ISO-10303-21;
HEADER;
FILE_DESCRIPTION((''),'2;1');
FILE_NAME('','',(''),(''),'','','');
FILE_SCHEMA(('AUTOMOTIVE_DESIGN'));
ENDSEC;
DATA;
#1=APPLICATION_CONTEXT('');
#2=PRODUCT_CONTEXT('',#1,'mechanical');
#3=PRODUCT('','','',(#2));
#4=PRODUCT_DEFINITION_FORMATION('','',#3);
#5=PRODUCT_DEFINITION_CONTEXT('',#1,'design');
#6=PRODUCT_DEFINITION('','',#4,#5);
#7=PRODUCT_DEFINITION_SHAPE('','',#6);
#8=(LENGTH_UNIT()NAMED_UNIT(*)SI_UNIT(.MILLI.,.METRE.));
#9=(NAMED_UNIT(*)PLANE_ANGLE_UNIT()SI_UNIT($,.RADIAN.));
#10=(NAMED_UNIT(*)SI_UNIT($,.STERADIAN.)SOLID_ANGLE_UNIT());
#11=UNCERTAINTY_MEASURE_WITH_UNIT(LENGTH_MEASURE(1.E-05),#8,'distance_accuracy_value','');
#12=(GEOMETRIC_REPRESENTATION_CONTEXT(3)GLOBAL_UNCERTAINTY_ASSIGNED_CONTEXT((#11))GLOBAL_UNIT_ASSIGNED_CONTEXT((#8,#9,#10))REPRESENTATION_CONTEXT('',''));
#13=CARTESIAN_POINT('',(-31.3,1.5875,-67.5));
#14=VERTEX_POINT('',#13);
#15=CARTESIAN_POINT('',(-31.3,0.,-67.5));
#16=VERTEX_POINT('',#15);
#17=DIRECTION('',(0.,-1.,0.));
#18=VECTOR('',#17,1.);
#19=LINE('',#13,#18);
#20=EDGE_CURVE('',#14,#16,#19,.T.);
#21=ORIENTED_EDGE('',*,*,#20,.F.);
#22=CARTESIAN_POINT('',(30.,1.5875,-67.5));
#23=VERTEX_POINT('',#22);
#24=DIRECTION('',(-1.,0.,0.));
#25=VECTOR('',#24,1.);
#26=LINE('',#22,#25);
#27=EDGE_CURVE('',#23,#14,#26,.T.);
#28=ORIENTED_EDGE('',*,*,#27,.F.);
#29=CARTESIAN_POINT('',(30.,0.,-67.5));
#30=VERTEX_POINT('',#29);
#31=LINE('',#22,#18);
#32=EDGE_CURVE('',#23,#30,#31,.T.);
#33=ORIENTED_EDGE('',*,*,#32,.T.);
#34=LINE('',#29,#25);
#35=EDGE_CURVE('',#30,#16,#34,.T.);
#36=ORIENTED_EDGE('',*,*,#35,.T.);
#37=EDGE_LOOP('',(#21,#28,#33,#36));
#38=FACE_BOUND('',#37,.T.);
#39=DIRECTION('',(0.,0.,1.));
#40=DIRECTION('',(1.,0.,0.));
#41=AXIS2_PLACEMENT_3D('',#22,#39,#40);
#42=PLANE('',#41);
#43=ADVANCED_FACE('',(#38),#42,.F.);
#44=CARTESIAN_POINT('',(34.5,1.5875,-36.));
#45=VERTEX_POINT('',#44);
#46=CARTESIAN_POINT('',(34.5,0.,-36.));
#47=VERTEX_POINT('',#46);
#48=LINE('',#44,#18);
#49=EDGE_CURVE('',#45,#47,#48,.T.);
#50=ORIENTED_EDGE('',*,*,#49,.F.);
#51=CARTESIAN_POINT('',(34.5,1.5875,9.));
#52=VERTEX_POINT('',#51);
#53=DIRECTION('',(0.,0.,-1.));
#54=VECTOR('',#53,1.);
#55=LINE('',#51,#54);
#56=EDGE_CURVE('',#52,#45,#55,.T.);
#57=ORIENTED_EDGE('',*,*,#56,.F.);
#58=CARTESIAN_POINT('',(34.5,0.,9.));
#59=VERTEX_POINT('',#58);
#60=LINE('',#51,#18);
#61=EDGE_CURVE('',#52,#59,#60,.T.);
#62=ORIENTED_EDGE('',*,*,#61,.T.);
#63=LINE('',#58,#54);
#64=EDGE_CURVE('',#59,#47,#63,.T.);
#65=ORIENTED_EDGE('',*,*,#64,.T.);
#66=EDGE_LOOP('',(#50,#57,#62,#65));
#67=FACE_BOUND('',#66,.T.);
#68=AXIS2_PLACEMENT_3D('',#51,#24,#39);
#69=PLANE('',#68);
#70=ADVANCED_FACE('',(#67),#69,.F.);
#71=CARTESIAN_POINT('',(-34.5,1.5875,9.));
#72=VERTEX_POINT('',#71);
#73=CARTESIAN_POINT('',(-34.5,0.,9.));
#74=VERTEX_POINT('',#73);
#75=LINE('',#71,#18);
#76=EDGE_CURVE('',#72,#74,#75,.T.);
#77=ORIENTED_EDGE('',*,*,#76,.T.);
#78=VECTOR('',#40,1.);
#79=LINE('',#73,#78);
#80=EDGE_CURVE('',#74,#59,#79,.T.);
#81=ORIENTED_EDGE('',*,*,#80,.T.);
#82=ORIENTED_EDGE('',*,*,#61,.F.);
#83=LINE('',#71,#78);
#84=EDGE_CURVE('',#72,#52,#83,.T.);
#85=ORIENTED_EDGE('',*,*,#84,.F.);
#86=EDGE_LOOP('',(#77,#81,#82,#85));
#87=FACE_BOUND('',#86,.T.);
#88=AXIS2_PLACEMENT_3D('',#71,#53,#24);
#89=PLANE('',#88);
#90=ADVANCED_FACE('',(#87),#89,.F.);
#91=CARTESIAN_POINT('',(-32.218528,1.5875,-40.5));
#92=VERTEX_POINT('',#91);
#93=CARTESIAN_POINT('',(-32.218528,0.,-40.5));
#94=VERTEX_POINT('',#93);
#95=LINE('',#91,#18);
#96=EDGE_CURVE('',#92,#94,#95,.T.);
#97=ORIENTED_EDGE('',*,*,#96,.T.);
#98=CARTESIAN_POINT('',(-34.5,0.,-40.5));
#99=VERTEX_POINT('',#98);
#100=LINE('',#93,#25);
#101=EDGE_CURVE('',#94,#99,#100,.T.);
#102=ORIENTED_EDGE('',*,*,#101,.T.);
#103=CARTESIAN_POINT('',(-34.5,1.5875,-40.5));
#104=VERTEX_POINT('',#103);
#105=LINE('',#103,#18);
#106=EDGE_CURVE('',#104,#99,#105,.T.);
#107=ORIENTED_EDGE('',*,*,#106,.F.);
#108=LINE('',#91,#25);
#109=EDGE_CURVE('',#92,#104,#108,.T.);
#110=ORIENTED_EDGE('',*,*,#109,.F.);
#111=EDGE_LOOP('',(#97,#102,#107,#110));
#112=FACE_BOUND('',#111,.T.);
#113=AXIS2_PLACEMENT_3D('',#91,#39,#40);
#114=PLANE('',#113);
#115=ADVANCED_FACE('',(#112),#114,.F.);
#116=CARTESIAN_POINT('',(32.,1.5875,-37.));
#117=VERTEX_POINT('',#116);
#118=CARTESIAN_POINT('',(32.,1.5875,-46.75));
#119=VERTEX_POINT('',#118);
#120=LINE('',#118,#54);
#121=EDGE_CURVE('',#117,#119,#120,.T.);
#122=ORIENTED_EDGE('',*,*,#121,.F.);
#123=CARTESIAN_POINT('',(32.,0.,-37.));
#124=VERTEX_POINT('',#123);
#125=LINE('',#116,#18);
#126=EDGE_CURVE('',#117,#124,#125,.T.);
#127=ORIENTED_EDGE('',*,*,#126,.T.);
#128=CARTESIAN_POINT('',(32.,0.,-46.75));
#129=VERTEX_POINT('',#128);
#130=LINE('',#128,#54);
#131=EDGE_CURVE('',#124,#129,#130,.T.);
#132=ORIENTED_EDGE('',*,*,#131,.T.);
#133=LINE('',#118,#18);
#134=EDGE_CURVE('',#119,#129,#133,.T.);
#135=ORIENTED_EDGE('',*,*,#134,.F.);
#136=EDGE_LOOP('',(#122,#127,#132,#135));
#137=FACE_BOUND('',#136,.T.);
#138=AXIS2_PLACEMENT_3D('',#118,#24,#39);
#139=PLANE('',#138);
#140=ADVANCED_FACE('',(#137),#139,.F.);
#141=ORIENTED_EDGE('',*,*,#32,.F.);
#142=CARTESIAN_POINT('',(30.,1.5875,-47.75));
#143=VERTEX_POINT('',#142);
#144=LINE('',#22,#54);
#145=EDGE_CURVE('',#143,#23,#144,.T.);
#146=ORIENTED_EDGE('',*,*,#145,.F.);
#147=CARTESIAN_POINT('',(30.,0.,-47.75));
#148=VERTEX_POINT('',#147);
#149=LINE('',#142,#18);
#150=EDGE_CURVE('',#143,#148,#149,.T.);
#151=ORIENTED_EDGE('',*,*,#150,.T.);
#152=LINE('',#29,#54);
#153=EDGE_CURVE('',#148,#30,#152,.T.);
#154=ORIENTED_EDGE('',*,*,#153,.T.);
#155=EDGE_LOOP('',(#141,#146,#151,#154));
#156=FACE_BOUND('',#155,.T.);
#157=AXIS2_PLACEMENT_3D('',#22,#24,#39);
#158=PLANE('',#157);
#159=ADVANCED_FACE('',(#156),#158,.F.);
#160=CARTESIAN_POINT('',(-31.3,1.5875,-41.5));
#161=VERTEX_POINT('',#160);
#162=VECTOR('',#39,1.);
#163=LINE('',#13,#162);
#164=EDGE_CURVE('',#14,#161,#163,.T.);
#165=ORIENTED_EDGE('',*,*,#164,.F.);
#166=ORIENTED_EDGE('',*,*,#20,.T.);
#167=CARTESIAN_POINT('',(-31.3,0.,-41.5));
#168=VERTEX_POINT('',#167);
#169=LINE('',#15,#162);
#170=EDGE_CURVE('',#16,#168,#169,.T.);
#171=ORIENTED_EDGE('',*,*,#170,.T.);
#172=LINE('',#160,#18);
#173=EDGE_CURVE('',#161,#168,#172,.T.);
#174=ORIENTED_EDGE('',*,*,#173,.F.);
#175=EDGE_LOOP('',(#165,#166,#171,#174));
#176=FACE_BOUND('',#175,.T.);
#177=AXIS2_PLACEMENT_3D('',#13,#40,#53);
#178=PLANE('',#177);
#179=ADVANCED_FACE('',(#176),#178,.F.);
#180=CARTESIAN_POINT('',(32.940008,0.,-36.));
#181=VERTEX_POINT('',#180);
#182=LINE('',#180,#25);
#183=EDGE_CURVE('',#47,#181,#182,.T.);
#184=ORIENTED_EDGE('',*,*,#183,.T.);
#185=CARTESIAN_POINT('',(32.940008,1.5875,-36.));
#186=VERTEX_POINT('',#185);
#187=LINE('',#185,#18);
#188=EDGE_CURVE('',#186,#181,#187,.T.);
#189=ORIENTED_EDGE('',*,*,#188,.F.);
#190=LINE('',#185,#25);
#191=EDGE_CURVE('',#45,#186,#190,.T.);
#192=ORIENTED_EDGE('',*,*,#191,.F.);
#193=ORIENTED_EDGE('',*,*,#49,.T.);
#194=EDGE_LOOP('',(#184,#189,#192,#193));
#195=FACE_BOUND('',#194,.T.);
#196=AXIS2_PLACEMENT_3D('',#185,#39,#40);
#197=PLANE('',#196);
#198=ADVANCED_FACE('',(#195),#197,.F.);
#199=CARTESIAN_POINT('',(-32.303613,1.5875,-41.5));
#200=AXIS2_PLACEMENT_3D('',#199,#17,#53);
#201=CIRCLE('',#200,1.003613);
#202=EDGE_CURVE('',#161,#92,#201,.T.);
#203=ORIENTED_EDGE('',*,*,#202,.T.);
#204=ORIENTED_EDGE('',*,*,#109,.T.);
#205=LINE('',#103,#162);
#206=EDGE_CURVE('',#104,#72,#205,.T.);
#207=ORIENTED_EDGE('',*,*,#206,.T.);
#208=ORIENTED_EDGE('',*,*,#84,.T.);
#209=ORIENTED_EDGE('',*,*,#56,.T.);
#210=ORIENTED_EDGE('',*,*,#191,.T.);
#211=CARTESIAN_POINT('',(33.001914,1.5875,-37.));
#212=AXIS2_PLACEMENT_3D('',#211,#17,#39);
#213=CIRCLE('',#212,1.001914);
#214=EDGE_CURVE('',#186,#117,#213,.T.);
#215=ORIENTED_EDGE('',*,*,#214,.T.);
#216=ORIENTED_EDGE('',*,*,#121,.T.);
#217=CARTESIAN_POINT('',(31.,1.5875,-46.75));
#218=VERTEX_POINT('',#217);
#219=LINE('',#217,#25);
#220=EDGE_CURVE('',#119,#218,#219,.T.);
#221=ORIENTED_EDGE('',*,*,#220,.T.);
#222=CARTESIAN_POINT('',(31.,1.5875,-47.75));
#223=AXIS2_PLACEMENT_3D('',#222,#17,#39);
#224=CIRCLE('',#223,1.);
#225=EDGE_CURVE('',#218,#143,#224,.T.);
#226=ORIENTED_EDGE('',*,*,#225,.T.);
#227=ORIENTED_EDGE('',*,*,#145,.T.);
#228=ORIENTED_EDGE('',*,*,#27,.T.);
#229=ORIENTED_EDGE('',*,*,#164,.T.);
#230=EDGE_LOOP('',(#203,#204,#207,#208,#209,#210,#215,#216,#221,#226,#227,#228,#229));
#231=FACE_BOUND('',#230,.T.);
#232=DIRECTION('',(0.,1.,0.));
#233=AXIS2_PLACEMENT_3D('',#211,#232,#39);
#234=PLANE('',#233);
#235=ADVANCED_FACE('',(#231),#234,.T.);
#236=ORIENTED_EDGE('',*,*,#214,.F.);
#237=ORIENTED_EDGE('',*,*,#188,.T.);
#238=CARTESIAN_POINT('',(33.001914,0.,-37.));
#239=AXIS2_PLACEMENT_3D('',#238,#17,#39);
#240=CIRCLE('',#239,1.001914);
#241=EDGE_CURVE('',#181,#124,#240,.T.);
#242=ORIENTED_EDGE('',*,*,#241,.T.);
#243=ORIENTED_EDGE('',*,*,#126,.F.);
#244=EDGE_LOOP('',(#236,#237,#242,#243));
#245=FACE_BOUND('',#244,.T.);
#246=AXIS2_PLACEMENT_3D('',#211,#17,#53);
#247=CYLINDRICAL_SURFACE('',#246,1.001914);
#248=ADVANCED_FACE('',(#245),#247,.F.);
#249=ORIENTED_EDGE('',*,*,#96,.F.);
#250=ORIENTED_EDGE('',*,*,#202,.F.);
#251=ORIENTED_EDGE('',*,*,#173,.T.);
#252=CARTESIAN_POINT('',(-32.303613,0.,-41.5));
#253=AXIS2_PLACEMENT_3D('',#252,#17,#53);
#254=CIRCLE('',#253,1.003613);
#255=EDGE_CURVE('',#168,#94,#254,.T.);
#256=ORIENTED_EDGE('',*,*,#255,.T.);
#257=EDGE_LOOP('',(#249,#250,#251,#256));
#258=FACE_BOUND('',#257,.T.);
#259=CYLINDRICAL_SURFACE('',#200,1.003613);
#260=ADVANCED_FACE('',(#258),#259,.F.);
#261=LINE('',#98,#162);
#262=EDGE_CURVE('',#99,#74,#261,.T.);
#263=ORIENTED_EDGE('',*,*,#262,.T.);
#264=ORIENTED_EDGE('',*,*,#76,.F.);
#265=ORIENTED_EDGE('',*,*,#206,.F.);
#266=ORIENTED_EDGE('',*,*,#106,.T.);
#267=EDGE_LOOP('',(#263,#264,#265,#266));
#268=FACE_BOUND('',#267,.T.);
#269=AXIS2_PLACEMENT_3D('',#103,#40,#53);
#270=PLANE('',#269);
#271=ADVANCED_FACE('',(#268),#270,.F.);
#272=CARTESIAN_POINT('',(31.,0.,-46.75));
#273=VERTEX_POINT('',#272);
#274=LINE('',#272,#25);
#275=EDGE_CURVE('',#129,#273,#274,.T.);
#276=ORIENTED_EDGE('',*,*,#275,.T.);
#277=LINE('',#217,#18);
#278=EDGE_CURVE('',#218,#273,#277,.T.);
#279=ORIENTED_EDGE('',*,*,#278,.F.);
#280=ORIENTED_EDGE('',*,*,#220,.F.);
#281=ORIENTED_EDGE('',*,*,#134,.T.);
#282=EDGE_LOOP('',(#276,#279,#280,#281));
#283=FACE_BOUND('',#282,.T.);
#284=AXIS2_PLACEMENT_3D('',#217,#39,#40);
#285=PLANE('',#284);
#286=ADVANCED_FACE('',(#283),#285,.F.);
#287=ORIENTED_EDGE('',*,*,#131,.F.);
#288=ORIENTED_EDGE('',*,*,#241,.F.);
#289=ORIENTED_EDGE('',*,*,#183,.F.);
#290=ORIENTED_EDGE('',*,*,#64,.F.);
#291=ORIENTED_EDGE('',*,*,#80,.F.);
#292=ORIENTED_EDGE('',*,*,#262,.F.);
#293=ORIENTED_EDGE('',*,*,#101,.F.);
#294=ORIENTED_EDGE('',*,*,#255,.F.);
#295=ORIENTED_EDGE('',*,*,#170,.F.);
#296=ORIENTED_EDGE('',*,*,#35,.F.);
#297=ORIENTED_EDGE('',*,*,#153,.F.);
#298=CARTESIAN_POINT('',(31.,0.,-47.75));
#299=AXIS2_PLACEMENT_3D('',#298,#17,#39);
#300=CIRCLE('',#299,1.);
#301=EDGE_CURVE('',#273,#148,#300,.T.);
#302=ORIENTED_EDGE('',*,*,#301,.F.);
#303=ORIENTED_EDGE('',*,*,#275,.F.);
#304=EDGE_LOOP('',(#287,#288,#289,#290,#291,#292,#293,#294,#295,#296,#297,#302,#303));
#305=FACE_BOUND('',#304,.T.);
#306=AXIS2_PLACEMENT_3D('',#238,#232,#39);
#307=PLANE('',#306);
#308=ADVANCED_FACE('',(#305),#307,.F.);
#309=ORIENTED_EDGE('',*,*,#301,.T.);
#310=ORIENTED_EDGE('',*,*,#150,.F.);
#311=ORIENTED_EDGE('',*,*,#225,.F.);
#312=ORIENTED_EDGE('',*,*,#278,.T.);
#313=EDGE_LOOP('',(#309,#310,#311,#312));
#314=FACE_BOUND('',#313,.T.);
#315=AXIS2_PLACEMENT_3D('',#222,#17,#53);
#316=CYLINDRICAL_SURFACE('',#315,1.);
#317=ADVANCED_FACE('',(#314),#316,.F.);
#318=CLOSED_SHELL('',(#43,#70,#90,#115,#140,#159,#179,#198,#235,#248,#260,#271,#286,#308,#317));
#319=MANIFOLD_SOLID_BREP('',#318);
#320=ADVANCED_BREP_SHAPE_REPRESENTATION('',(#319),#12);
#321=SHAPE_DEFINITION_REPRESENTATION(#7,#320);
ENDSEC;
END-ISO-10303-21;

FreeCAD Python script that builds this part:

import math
import FreeCAD as App
import Part
import Sketcher

V = App.Vector
Q = App.Units.Quantity

doc = App.newDocument("Part")
params = doc.addObject("Spreadsheet::Sheet", "Params")
for row, (alias, value) in enumerate([
    ("sketch1_radius", "1 mm"),
    ("sketch1_width", "69 mm"),
    ("sketch1_width2", "1 mm"),
    ("sketch1_height", "45 mm"),
    ("sketch1_height2", "26 mm"),
    ("pad1_length", "1.5875 mm"),
], start=1):
    params.set(f"A{row}", alias)
    params.set(f"B{row}", "=" + value)
    params.setAlias(f"B{row}", alias)

body = doc.addObject("PartDesign::Body", "Body")

# Sketch on XZ plane
sketch1 = body.newObject("Sketcher::SketchObject", "Sketch")
sketch1.AttachmentSupport = (doc.getObject("XZ_Plane"), [""])
sketch1.MapMode = "FlatFace"
sketch1.addGeometry([
    Part.LineSegment(V(-34.5, 9, 0), V(34.5, 9, 0)),  # 0
    Part.LineSegment(V(34.5, 9, 0), V(34.5, -36, 0)),  # 1
    Part.LineSegment(V(34.5, -36, 0), V(32.9, -36, 0)),  # 2
    Part.ArcOfCircle(Part.Circle(V(33, -37, 0), V(0, 0, 1), 1), math.radians(94), math.radians(180)),  # 3
    Part.LineSegment(V(32, -37, 0), V(32, -46.8, 0)),  # 4
    Part.LineSegment(V(32, -46.8, 0), V(31, -46.8, 0)),  # 5
    Part.ArcOfCircle(Part.Circle(V(31, -47.8, 0), V(0, 0, 1), 1), math.radians(90), math.radians(180)),  # 6
    Part.LineSegment(V(30, -47.8, 0), V(30, -67.5, 0)),  # 7
    Part.LineSegment(V(30, -67.5, 0), V(-31.3, -67.5, 0)),  # 8
    Part.LineSegment(V(-31.3, -67.5, 0), V(-31.3, -41.5, 0)),  # 9
    Part.ArcOfCircle(Part.Circle(V(-32.3, -41.5, 0), V(0, 0, 1), 1), math.radians(0), math.radians(85)),  # 10
    Part.LineSegment(V(-32.2, -40.5, 0), V(-34.5, -40.5, 0)),  # 11
    Part.LineSegment(V(-34.5, -40.5, 0), V(-34.5, 9, 0)),  # 12
], False)
sketch1.addConstraint([
    Sketcher.Constraint("Coincident", 0, 2, 1, 1),
    Sketcher.Constraint("Coincident", 1, 2, 2, 1),
    Sketcher.Constraint("Coincident", 2, 2, 3, 1),
    Sketcher.Constraint("Tangent", 3, 2, 4, 1),
    Sketcher.Constraint("Coincident", 4, 2, 5, 1),
    Sketcher.Constraint("Tangent", 5, 2, 6, 1),
    Sketcher.Constraint("Tangent", 6, 2, 7, 1),
    Sketcher.Constraint("Coincident", 7, 2, 8, 1),
    Sketcher.Constraint("Coincident", 8, 2, 9, 1),
    Sketcher.Constraint("Tangent", 9, 2, 10, 1),
    Sketcher.Constraint("Coincident", 10, 2, 11, 1),
    Sketcher.Constraint("Coincident", 11, 2, 12, 1),
    Sketcher.Constraint("Coincident", 12, 2, 0, 1),
    Sketcher.Constraint("Horizontal", 0),
    Sketcher.Constraint("Vertical", 1),
    Sketcher.Constraint("Horizontal", 2),
    Sketcher.Constraint("Vertical", 4),
    Sketcher.Constraint("Horizontal", 5),
    Sketcher.Constraint("Vertical", 7),
    Sketcher.Constraint("Horizontal", 8),
    Sketcher.Constraint("Vertical", 9),
    Sketcher.Constraint("Horizontal", 11),
    Sketcher.Constraint("Vertical", 12),
    Sketcher.Constraint("Radius", 6, Q("1 mm")),
    Sketcher.Constraint("DistanceX", 0, 1, 0, 2, Q("69 mm")),
    Sketcher.Constraint("DistanceX", 5, 2, 5, 1, Q("1 mm")),
    Sketcher.Constraint("DistanceY", 1, 2, 1, 1, Q("45 mm")),
    Sketcher.Constraint("DistanceY", 9, 1, 9, 2, Q("26 mm")),
    Sketcher.Constraint("DistanceX", 8, 2, 8, 1, Q("61.3 mm")),
    Sketcher.Constraint("DistanceY", 12, 1, 12, 2, Q("49.5 mm")),
    Sketcher.Constraint("DistanceY", 3, 3, -1, 1, Q("37 mm")),
    Sketcher.Constraint("DistanceX", -1, 1, 6, 3, Q("31 mm")),
    Sketcher.Constraint("DistanceY", -1, 1, 0, 2, Q("9 mm")),
    Sketcher.Constraint("DistanceY", 10, 3, 10, 2, Q("1 mm")),
    Sketcher.Constraint("DistanceY", 4, 2, 4, 1, Q("9.75 mm")),
    Sketcher.Constraint("DistanceX", -1, 1, 0, 2, Q("34.5 mm")),
    Sketcher.Constraint("Radius", 3, Q("1.001914 mm")),
    Sketcher.Constraint("Radius", 10, Q("1.003613 mm")),
])
sketch1.setExpression("Constraints[23]", "Params.sketch1_radius")
sketch1.setExpression("Constraints[24]", "Params.sketch1_width")
sketch1.setExpression("Constraints[25]", "Params.sketch1_width2")
sketch1.setExpression("Constraints[26]", "Params.sketch1_height")
sketch1.setExpression("Constraints[27]", "Params.sketch1_height2")
pad1 = body.newObject("PartDesign::Pad", "Pad")
pad1.Profile = sketch1
pad1.setExpression("Length", "Params.pad1_length")
pad1.Reversed = True

doc.recompute()
